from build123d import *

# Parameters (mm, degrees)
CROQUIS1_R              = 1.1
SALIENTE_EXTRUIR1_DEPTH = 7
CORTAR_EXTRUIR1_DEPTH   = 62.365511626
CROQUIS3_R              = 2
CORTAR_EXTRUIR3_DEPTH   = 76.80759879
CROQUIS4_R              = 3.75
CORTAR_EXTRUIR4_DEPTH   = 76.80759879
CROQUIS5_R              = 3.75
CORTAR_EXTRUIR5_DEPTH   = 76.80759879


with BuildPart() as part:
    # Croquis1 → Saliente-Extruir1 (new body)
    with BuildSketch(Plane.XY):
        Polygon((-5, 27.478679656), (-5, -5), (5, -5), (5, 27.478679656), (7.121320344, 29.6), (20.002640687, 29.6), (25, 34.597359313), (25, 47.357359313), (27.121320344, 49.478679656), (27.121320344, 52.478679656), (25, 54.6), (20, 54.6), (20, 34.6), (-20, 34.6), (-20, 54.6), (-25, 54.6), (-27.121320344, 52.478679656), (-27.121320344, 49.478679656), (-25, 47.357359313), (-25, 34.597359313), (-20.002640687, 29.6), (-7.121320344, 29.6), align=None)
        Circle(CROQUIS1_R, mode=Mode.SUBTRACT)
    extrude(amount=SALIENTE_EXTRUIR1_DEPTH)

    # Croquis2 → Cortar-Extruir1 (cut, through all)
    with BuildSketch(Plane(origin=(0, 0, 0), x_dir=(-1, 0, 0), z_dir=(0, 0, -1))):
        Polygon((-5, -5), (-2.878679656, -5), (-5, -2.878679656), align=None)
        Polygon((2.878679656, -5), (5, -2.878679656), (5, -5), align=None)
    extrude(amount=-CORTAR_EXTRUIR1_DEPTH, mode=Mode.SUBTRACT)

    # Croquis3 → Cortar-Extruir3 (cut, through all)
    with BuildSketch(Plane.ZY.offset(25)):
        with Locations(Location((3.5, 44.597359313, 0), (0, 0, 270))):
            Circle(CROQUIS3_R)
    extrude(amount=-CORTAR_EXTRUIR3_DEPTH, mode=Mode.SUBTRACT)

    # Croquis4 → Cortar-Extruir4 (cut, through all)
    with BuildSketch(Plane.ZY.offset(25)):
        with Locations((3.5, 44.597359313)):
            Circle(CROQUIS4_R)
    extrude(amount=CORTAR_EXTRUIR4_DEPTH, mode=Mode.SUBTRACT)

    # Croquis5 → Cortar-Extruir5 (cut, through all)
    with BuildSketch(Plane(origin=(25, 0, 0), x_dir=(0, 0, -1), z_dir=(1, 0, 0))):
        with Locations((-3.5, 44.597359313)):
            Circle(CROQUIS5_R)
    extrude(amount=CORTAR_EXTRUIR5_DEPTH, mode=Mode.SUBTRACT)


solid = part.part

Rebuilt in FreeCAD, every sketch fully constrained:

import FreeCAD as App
import Part
import Sketcher

doc = App.newDocument("Part")
body = doc.addObject("PartDesign::Body", "Body")

sketch1 = body.newObject("Sketcher::SketchObject", "Sketch")
sketch1.AttachmentSupport = (doc.getObject("XY_Plane"), [""])
sketch1.MapMode = "FlatFace"
sketch1.addGeometry([
    Part.LineSegment(App.Vector(-5, 27.47868, 0), App.Vector(-5, -5, 0)),
    Part.LineSegment(App.Vector(-5, -5, 0), App.Vector(5, -5, 0)),
    Part.LineSegment(App.Vector(5, -5, 0), App.Vector(5, 27.47868, 0)),
    Part.LineSegment(App.Vector(5, 27.47868, 0), App.Vector(7.12132, 29.6, 0)),
    Part.LineSegment(App.Vector(7.12132, 29.6, 0), App.Vector(20.002641, 29.6, 0)),
    Part.LineSegment(App.Vector(20.002641, 29.6, 0), App.Vector(25, 34.597359, 0)),
    Part.LineSegment(App.Vector(25, 34.597359, 0), App.Vector(25, 47.357359, 0)),
    Part.LineSegment(App.Vector(25, 47.357359, 0), App.Vector(27.12132, 49.47868, 0)),
    Part.LineSegment(App.Vector(27.12132, 49.47868, 0), App.Vector(27.12132, 52.47868, 0)),
    Part.LineSegment(App.Vector(27.12132, 52.47868, 0), App.Vector(25, 54.6, 0)),
    Part.LineSegment(App.Vector(25, 54.6, 0), App.Vector(20, 54.6, 0)),
    Part.LineSegment(App.Vector(20, 54.6, 0), App.Vector(20, 34.6, 0)),
    Part.LineSegment(App.Vector(20, 34.6, 0), App.Vector(-20, 34.6, 0)),
    Part.LineSegment(App.Vector(-20, 34.6, 0), App.Vector(-20, 54.6, 0)),
    Part.LineSegment(App.Vector(-20, 54.6, 0), App.Vector(-25, 54.6, 0)),
    Part.LineSegment(App.Vector(-25, 54.6, 0), App.Vector(-27.12132, 52.47868, 0)),
    Part.LineSegment(App.Vector(-27.12132, 52.47868, 0), App.Vector(-27.12132, 49.47868, 0)),
    Part.LineSegment(App.Vector(-27.12132, 49.47868, 0), App.Vector(-25, 47.357359, 0)),
    Part.LineSegment(App.Vector(-25, 47.357359, 0), App.Vector(-25, 34.597359, 0)),
    Part.LineSegment(App.Vector(-25, 34.597359, 0), App.Vector(-20.002641, 29.6, 0)),
    Part.LineSegment(App.Vector(-20.002641, 29.6, 0), App.Vector(-7.12132, 29.6, 0)),
    Part.LineSegment(App.Vector(-7.12132, 29.6, 0), App.Vector(-5, 27.47868, 0)),
    Part.Circle(App.Vector(0, 0, 0), App.Vector(0, 0, 1), 1.1),
], False)
sketch1.addConstraint([
    Sketcher.Constraint("Coincident", 0, 2, 1, 1),
    Sketcher.Constraint("Coincident", 1, 2, 2, 1),
    Sketcher.Constraint("Coincident", 2, 2, 3, 1),
    Sketcher.Constraint("Coincident", 3, 2, 4, 1),
    Sketcher.Constraint("Coincident", 4, 2, 5, 1),
    Sketcher.Constraint("Coincident", 5, 2, 6, 1),
    Sketcher.Constraint("Coincident", 6, 2, 7, 1),
    Sketcher.Constraint("Coincident", 7, 2, 8, 1),
    Sketcher.Constraint("Coincident", 8, 2, 9, 1),
    Sketcher.Constraint("Coincident", 9, 2, 10, 1),
    Sketcher.Constraint("Coincident", 10, 2, 11, 1),
    Sketcher.Constraint("Coincident", 11, 2, 12, 1),
    Sketcher.Constraint("Coincident", 12, 2, 13, 1),
    Sketcher.Constraint("Coincident", 13, 2, 14, 1),
    Sketcher.Constraint("Coincident", 14, 2, 15, 1),
    Sketcher.Constraint("Coincident", 15, 2, 16, 1),
    Sketcher.Constraint("Coincident", 16, 2, 17, 1),
    Sketcher.Constraint("Coincident", 17, 2, 18, 1),
    Sketcher.Constraint("Coincident", 18, 2, 19, 1),
    Sketcher.Constraint("Coincident", 19, 2, 20, 1),
    Sketcher.Constraint("Coincident", 20, 2, 21, 1),
    Sketcher.Constraint("Coincident", 21, 2, 0, 1),
    Sketcher.Constraint("Vertical", 0),
    Sketcher.Constraint("Horizontal", 1),
    Sketcher.Constraint("Vertical", 2),
    Sketcher.Constraint("Horizontal", 4),
    Sketcher.Constraint("Vertical", 6),
    Sketcher.Constraint("Vertical", 8),
    Sketcher.Constraint("Horizontal", 10),
    Sketcher.Constraint("Vertical", 11),
    Sketcher.Constraint("Horizontal", 12),
    Sketcher.Constraint("Vertical", 13),
    Sketcher.Constraint("Horizontal", 14),
    Sketcher.Constraint("Vertical", 16),
    Sketcher.Constraint("Vertical", 18),
    Sketcher.Constraint("Horizontal", 20),
    Sketcher.Constraint("Coincident", 22, 3, -1, 1),
    Sketcher.Constraint("Symmetric", 10, 2, 13, 2, -2),
    Sketcher.Constraint("Symmetric", 8, 2, 15, 2, -2),
    Sketcher.Constraint("Symmetric", 6, 2, 17, 2, -2),
    Sketcher.Constraint("Symmetric", 4, 2, 19, 2, -2),
    Sketcher.Constraint("Symmetric", 2, 2, 21, 2, -2),
    Sketcher.Constraint("Parallel", 3, 5),
    Sketcher.Constraint("Parallel", 5, 7),
    Sketcher.Constraint("Perpendicular", 7, 9),
    Sketcher.Constraint("Perpendicular", 9, 15),
    Sketcher.Constraint("Perpendicular", 15, 17),
    Sketcher.Constraint("Parallel", 17, 19),
    Sketcher.Constraint("Parallel", 19, 21),
    Sketcher.Constraint("Horizontal", 7, 2, 16, 2),
    Sketcher.Constraint("Vertical", 6, 2, 9, 2),
    Sketcher.Constraint("Equal", 3, 7),
    Sketcher.Constraint("Diameter", 22, 2.2),
    Sketcher.Constraint("DistanceX", 1, 1, 1, 2, 10.0),
    Sketcher.Constraint("DistanceX", 10, 2, 10, 1, 5.0),
    Sketcher.Constraint("DistanceX", 12, 2, 12, 1, 40.0),
    Sketcher.Constraint("DistanceY", 8, 1, 8, 2, 3.0),
    Sketcher.Constraint("DistanceY", 11, 2, 11, 1, 20.0),
    Sketcher.Constraint("Distance", 3, 3.0),
    Sketcher.Constraint("DistanceY", 0, 2, -1, 1, 5.0),
    Sketcher.Constraint("DistanceY", 2, 2, 7, 2, 22.0),
    Sketcher.Constraint("DistanceY", 6, 1, 6, 2, 12.76),
    Sketcher.Constraint("DistanceY", -1, 1, 3, 2, 29.6),
])
pad1 = body.newObject("PartDesign::Pad", "Pad")
pad1.Profile = sketch1
pad1.Length = 7

sketch2 = body.newObject("Sketcher::SketchObject", "Sketch001")
sketch2.AttachmentSupport = (doc.getObject("XY_Plane"), [""])
sketch2.MapMode = "FlatFace"
sketch2.addGeometry([
    Part.LineSegment(App.Vector(5, -5, 0), App.Vector(2.87868, -5, 0)),
    Part.LineSegment(App.Vector(2.87868, -5, 0), App.Vector(5, -2.87868, 0)),
    Part.LineSegment(App.Vector(5, -2.87868, 0), App.Vector(5, -5, 0)),
    Part.LineSegment(App.Vector(-5, -2.87868, 0), App.Vector(-2.87868, -5, 0)),
    Part.LineSegment(App.Vector(-2.87868, -5, 0), App.Vector(-5, -5, 0)),
    Part.LineSegment(App.Vector(-5, -5, 0), App.Vector(-5, -2.87868, 0)),
], False)
sketch2.addConstraint([
    Sketcher.Constraint("Coincident", 0, 2, 1, 1),
    Sketcher.Constraint("Coincident", 1, 2, 2, 1),
    Sketcher.Constraint("Coincident", 2, 2, 0, 1),
    Sketcher.Constraint("Coincident", 3, 2, 4, 1),
    Sketcher.Constraint("Coincident", 4, 2, 5, 1),
    Sketcher.Constraint("Coincident", 5, 2, 3, 1),
    Sketcher.Constraint("Horizontal", 0),
    Sketcher.Constraint("Vertical", 2),
    Sketcher.Constraint("Horizontal", 4),
    Sketcher.Constraint("Vertical", 5),
    Sketcher.Constraint("Symmetric", 0, 2, 3, 2, -2),
    Sketcher.Constraint("Symmetric", 1, 2, 5, 2, -2),
    Sketcher.Constraint("Perpendicular", 1, 3),
    Sketcher.Constraint("Distance", 1, 3.0),
    Sketcher.Constraint("DistanceY", 0, 2, -1, 1, 5.0),
    Sketcher.Constraint("DistanceX", -1, 1, 1, 2, 5.0),
])
pocket1 = body.newObject("PartDesign::Pocket", "Pocket")
pocket1.Profile = sketch2
pocket1.Type = "ThroughAll"
pocket1.Reversed = True

sketch3 = body.newObject("Sketcher::SketchObject", "Sketch002")
sketch3.AttachmentSupport = (doc.getObject("YZ_Plane"), [""])
sketch3.MapMode = "FlatFace"
sketch3.AttachmentOffset = App.Placement(App.Vector(0, 0, -25), App.Rotation())
sketch3.addGeometry(Part.Circle(App.Vector(44.597359, 3.5, 0), App.Vector(0, 0, 1), 2), False)
sketch3.addConstraint([
    Sketcher.Constraint("Diameter", 0, 4.0),
    Sketcher.Constraint("DistanceY", -1, 1, 0, 3, 3.5),
    Sketcher.Constraint("DistanceX", -1, 1, 0, 3, 44.597359),
])
pocket2 = body.newObject("PartDesign::Pocket", "Pocket001")
pocket2.Profile = sketch3
pocket2.Type = "ThroughAll"
pocket2.Reversed = True

sketch4 = body.newObject("Sketcher::SketchObject", "Sketch003")
sketch4.AttachmentSupport = (doc.getObject("YZ_Plane"), [""])
sketch4.MapMode = "FlatFace"
sketch4.AttachmentOffset = App.Placement(App.Vector(0, 0, -25), App.Rotation())
sketch4.addGeometry(Part.Circle(App.Vector(44.597359, 3.5, 0), App.Vector(0, 0, 1), 3.75), False)
sketch4.addConstraint([
    Sketcher.Constraint("Diameter", 0, 7.5),
    Sketcher.Constraint("DistanceY", -1, 1, 0, 3, 3.5),
    Sketcher.Constraint("DistanceX", -1, 1, 0, 3, 44.597359),
])
pocket3 = body.newObject("PartDesign::Pocket", "Pocket002")
pocket3.Profile = sketch4
pocket3.Type = "ThroughAll"

sketch5 = body.newObject("Sketcher::SketchObject", "Sketch004")
sketch5.AttachmentSupport = (doc.getObject("YZ_Plane"), [""])
sketch5.MapMode = "FlatFace"
sketch5.AttachmentOffset = App.Placement(App.Vector(0, 0, 25), App.Rotation())
sketch5.addGeometry(Part.Circle(App.Vector(44.597359, 3.5, 0), App.Vector(0, 0, 1), 3.75), False)
sketch5.addConstraint([
    Sketcher.Constraint("Diameter", 0, 7.5),
    Sketcher.Constraint("DistanceY", -1, 1, 0, 3, 3.5),
    Sketcher.Constraint("DistanceX", -1, 1, 0, 3, 44.597359),
])
pocket4 = body.newObject("PartDesign::Pocket", "Pocket003")
pocket4.Profile = sketch5
pocket4.Type = "ThroughAll"
pocket4.Reversed = True

doc.recompute()
